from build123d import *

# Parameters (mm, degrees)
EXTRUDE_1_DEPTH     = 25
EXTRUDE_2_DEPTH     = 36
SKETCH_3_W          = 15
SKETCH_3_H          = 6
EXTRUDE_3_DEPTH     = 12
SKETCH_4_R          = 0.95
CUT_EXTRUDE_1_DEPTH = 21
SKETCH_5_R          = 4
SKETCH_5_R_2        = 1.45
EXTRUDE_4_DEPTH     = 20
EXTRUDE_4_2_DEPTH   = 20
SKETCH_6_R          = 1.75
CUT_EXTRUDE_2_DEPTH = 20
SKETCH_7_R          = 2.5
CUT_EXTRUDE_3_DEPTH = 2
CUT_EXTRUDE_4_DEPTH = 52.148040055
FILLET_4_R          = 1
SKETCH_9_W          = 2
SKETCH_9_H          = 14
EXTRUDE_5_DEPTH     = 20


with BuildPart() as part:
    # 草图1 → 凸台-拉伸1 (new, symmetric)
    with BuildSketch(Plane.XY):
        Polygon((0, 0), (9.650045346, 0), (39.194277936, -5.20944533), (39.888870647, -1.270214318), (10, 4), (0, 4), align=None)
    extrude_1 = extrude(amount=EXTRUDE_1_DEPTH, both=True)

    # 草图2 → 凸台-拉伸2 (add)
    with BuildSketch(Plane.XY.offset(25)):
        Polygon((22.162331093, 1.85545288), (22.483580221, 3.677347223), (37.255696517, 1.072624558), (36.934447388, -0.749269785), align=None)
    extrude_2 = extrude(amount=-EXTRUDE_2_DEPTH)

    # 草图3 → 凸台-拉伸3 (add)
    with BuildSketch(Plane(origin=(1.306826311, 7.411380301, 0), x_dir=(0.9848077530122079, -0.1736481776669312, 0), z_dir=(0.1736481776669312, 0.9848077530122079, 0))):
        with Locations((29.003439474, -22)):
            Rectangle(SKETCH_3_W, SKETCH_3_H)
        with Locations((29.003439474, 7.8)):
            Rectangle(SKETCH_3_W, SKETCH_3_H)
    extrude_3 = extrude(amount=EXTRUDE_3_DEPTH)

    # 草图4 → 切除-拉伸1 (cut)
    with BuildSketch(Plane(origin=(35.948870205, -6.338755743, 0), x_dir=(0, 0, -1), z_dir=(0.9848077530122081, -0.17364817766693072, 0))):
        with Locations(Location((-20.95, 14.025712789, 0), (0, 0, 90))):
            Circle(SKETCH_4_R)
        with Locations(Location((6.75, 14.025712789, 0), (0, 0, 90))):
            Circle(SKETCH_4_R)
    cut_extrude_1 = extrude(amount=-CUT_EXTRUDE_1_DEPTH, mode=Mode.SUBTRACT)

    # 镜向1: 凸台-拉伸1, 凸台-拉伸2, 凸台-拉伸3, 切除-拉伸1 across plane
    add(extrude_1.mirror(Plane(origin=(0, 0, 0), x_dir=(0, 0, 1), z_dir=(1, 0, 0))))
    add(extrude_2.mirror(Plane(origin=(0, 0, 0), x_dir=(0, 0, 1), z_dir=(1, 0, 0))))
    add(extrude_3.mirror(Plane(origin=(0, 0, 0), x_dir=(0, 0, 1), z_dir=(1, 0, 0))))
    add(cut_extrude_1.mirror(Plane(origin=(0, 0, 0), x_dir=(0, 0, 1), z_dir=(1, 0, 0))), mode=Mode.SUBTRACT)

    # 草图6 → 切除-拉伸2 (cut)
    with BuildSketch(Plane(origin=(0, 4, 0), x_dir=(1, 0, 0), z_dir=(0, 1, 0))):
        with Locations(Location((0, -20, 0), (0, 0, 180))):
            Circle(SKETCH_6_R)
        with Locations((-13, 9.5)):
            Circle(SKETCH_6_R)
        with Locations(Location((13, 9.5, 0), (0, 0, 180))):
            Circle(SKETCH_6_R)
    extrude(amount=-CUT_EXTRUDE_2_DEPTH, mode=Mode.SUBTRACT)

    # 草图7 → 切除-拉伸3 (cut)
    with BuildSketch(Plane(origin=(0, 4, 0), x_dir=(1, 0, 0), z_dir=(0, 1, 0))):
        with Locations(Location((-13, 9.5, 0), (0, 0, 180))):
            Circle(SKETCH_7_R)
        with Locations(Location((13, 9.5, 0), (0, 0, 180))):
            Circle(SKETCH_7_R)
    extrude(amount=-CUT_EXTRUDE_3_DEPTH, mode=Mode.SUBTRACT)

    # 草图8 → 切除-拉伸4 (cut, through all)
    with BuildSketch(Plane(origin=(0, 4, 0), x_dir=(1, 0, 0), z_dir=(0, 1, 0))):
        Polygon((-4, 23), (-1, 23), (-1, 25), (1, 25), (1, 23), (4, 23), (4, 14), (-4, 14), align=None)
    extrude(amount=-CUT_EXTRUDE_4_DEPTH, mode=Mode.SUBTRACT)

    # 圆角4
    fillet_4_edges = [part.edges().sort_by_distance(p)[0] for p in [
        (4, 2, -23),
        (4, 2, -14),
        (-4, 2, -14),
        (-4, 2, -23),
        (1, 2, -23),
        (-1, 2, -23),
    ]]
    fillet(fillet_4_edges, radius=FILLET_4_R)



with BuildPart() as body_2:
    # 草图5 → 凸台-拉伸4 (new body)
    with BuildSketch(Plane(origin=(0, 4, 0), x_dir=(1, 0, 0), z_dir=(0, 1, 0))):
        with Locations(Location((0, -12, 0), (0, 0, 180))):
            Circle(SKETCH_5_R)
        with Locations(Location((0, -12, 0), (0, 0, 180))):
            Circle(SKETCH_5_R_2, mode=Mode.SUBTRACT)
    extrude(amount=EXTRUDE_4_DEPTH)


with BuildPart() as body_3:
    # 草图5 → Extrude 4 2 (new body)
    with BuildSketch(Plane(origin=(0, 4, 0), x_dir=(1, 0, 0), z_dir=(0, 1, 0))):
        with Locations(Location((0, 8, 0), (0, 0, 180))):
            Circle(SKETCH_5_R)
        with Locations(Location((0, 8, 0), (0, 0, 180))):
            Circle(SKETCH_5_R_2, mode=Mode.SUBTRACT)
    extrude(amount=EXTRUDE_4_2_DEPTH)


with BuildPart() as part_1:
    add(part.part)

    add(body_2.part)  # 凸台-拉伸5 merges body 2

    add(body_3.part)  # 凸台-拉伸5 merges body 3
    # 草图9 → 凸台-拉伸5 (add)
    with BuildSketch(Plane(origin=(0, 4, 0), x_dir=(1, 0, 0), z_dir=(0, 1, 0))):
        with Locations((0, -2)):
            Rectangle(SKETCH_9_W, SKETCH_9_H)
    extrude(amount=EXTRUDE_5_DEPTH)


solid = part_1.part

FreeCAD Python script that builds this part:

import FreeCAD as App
import Part
import Sketcher

V = App.Vector
Q = App.Units.Quantity


def edges_at(feature, points):
    """Names of the edges that pass closest to the given points."""
    edges = feature.Shape.Edges
    near = lambda p: min(range(len(edges)), key=lambda i: edges[i].distToShape(Part.Vertex(*p))[0])
    return sorted({f"Edge{near(p) + 1}" for p in points})


def add_polygon(sketch, points):
    """Adds a closed chain of lines whose ends are joined by coincident constraints."""
    first, n = sketch.GeometryCount, len(points)
    for a, b in zip(points, points[1:] + points[:1]):
        sketch.addGeometry(Part.LineSegment(App.Vector(*a, 0), App.Vector(*b, 0)), False)
    for i in range(n):
        sketch.addConstraint(Sketcher.Constraint("Coincident", first + i, 2, first + (i + 1) % n, 1))

doc = App.newDocument("Part")
params = doc.addObject("Spreadsheet::Sheet", "Params")
for row, (alias, value) in enumerate([
    ("sketch1_width", "10 mm"),
    ("sketch1_height", "4 mm"),
    ("sketch1_length", "30 mm"),
    ("sketch1_length2", "4 mm"),
    ("pad1_length", "50 mm"),
    ("sketch2_length", "15 mm"),
    ("sketch2_length2", "1.85 mm"),
    ("pad2_length", "36 mm"),
    ("sketch3_width", "15 mm"),
    ("sketch3_height", "6 mm"),
    ("pad3_length", "12 mm"),
    ("sketch4_diameter", "1.9 mm"),
    ("pocket1_length", "21 mm"),
    ("sketch5_diameter", "3.5 mm"),
    ("pocket2_length", "20 mm"),
    ("sketch6_diameter", "5 mm"),
    ("pocket3_length", "2 mm"),
    ("sketch7_width", "3 mm"),
    ("sketch7_width2", "8 mm"),
    ("sketch7_height", "9 mm"),
    ("fillet_radius", "1 mm"),
    ("sketch8_diameter", "8 mm"),
    ("sketch8_diameter2", "2.9 mm"),
    ("pad4_length", "20 mm"),
    ("sketch9_diameter", "8 mm"),
    ("sketch9_diameter2", "2.9 mm"),
    ("pad5_length", "20 mm"),
    ("sketch10_width", "2 mm"),
    ("sketch10_height", "14 mm"),
    ("pad6_length", "20 mm"),
], start=1):
    params.set(f"A{row}", alias)
    params.set(f"B{row}", "=" + value)
    params.setAlias(f"B{row}", alias)

body = doc.addObject("PartDesign::Body", "Body")

# Sketch on XY plane
sketch1 = body.newObject("Sketcher::SketchObject", "Sketch")
sketch1.AttachmentSupport = (doc.getObject("XY_Plane"), [""])
sketch1.MapMode = "FlatFace"
add_polygon(sketch1, [(0, 0), (9.7, 0), (39.2, -5.2), (39.9, -1.3), (10, 4), (0, 4)])  # lines 0-5
sketch1.addConstraint(Sketcher.Constraint("Horizontal", 0))
sketch1.addConstraint(Sketcher.Constraint("Horizontal", 4))
sketch1.addConstraint(Sketcher.Constraint("Vertical", 5))
sketch1.addConstraint(Sketcher.Constraint("Coincident", 5, 2, -1, 1))
sketch1.addConstraint(Sketcher.Constraint("Perpendicular", 1, 2))
sketch1.addConstraint(Sketcher.Constraint("Perpendicular", 2, 3))
sketch1.addConstraint(Sketcher.Constraint("DistanceX", 4, 2, 4, 1, Q("10 mm")))
sketch1.addConstraint(Sketcher.Constraint("DistanceY", 5, 2, 5, 1, Q("4 mm")))
sketch1.addConstraint(Sketcher.Constraint("Angle", 1, Q("-10 deg")))
sketch1.addConstraint(Sketcher.Constraint("Distance", 1, Q("30 mm")))
sketch1.addConstraint(Sketcher.Constraint("Distance", 2, Q("4 mm")))
sketch1.setExpression("Constraints[12]", "Params.sketch1_width")
sketch1.setExpression("Constraints[13]", "Params.sketch1_height")
sketch1.setExpression("Constraints[15]", "Params.sketch1_length")
sketch1.setExpression("Constraints[16]", "Params.sketch1_length2")
pad1 = body.newObject("PartDesign::Pad", "Pad")
pad1.Profile = sketch1
pad1.setExpression("Length", "Params.pad1_length")
pad1.Midplane = True

# Sketch on XY plane
sketch2 = body.newObject("Sketcher::SketchObject", "Sketch001")
sketch2.AttachmentSupport = (doc.getObject("XY_Plane"), [""])
sketch2.MapMode = "FlatFace"
sketch2.AttachmentOffset = App.Placement(V(0, 0, 25), App.Rotation())
add_polygon(sketch2, [(22.5, 3.7), (22.2, 1.9), (36.9, -0.7), (37.3, 1.1)])  # lines 0-3
sketch2.addConstraint(Sketcher.Constraint("Perpendicular", 0, 1))
sketch2.addConstraint(Sketcher.Constraint("Perpendicular", 1, 2))
sketch2.addConstraint(Sketcher.Constraint("Perpendicular", 2, 3))
sketch2.addConstraint(Sketcher.Constraint("Angle", 0, Q("-100 deg")))
sketch2.addConstraint(Sketcher.Constraint("Distance", 1, Q("15 mm")))
sketch2.addConstraint(Sketcher.Constraint("Distance", 0, Q("1.85 mm")))
sketch2.addConstraint(Sketcher.Constraint("DistanceX", -1, 1, 0, 2, Q("22.162331 mm")))
sketch2.addConstraint(Sketcher.Constraint("DistanceY", 1, 2, -1, 1, Q("0.74927 mm")))
sketch2.setExpression("Constraints[8]", "Params.sketch2_length")
sketch2.setExpression("Constraints[9]", "Params.sketch2_length2")
pad2 = body.newObject("PartDesign::Pad", "Pad001")
pad2.Profile = sketch2
pad2.setExpression("Length", "Params.pad2_length")
pad2.Reversed = True

# Sketch on an angled plane
sketch3 = body.newObject("Sketcher::SketchObject", "Sketch002")
sketch3.Placement = App.Placement(V(1.306826, 7.41138, 0), App.Rotation(V(0.984807753, -0.173648178, 0), V(0, 0, -1), V(0.173648178, 0.984807753, 0), "ZXY"))
add_polygon(sketch3, [(22, -19), (22, -25), (37, -25), (37, -19)])  # lines 0-3
add_polygon(sketch3, [(22, 11), (22, 5), (37, 5), (37, 11)])  # lines 4-7
sketch3.addConstraint(Sketcher.Constraint("Vertical", 0))
sketch3.addConstraint(Sketcher.Constraint("Horizontal", 1))
sketch3.addConstraint(Sketcher.Constraint("Vertical", 2))
sketch3.addConstraint(Sketcher.Constraint("Horizontal", 3))
sketch3.addConstraint(Sketcher.Constraint("Vertical", 4))
sketch3.addConstraint(Sketcher.Constraint("Horizontal", 5))
sketch3.addConstraint(Sketcher.Constraint("Vertical", 6))
sketch3.addConstraint(Sketcher.Constraint("Horizontal", 7))
sketch3.addConstraint(Sketcher.Constraint("Vertical", 3, 2, 4, 2))
sketch3.addConstraint(Sketcher.Constraint("Vertical", 2, 2, 5, 2))
sketch3.addConstraint(Sketcher.Constraint("Equal", 2, 4))
sketch3.addConstraint(Sketcher.Constraint("DistanceX", 1, 1, 1, 2, Q("15 mm")))
sketch3.addConstraint(Sketcher.Constraint("DistanceY", 0, 2, 0, 1, Q("6 mm")))
sketch3.addConstraint(Sketcher.Constraint("DistanceY", 0, 2, -1, 1, Q("25 mm")))
sketch3.addConstraint(Sketcher.Constraint("DistanceY", -1, 1, 4, 2, Q("4.8 mm")))
sketch3.addConstraint(Sketcher.Constraint("DistanceX", -1, 1, 0, 2, Q("21.503439 mm")))
sketch3.setExpression("Constraints[19]", "Params.sketch3_width")
sketch3.setExpression("Constraints[20]", "Params.sketch3_height")
pad3 = body.newObject("PartDesign::Pad", "Pad002")
pad3.Profile = sketch3
pad3.setExpression("Length", "Params.pad3_length")

# Sketch on an angled plane
sketch4 = body.newObject("Sketcher::SketchObject", "Sketch003")
sketch4.Placement = App.Placement(V(35.94887, -6.338756, 0), App.Rotation(V(0, 0, -1), V(0.173648178, 0.984807753, 0), V(0.984807753, -0.173648178, 0), "ZXY"))
sketch4.addGeometry(Part.Circle(V(-20.9, 14, 0), V(0, 0, 1), 0.9), False)
sketch4.addGeometry(Part.Circle(V(6.8, 14, 0), V(0, 0, 1), 0.9), False)
sketch4.addConstraint(Sketcher.Constraint("Equal", 0, 1))
sketch4.addConstraint(Sketcher.Constraint("Horizontal", 0, 3, 1, 3))
sketch4.addConstraint(Sketcher.Constraint("Diameter", 0, Q("1.9 mm")))
sketch4.addConstraint(Sketcher.Constraint("DistanceX", 0, 3, 1, 3, Q("27.7 mm")))
sketch4.addConstraint(Sketcher.Constraint("DistanceX", 0, 3, -1, 1, Q("20.95 mm")))
sketch4.addConstraint(Sketcher.Constraint("DistanceY", -1, 1, 0, 3, Q("14.025713 mm")))
sketch4.setExpression("Constraints[2]", "Params.sketch4_diameter")
pocket1 = body.newObject("PartDesign::Pocket", "Pocket")
pocket1.Profile = sketch4
pocket1.setExpression("Length", "Params.pocket1_length")
doc.recompute()

mirrored = body.newObject("PartDesign::Mirrored", "Mirrored")
mirrored.Originals = [pad1, pad2, pad3, pocket1]
mirrored.MirrorPlane = (doc.getObject("YZ_Plane"), [""])
body.Tip = mirrored

# Sketch on XZ plane
sketch5 = body.newObject("Sketcher::SketchObject", "Sketch004")
sketch5.AttachmentSupport = (doc.getObject("XZ_Plane"), [""])
sketch5.MapMode = "FlatFace"
sketch5.AttachmentOffset = App.Placement(V(0, 0, -4), App.Rotation())
sketch5.addGeometry(Part.Circle(V(0, 20, 0), V(0, 0, 1), 1.8), False)
sketch5.addGeometry(Part.Circle(V(-13, -9.5, 0), V(0, 0, 1), 1.8), False)
sketch5.addGeometry(Part.Circle(V(13, -9.5, 0), V(0, 0, 1), 1.8), False)
sketch5.addConstraint(Sketcher.Constraint("Equal", 0, 1))
sketch5.addConstraint(Sketcher.Constraint("Equal", 1, 2))
sketch5.addConstraint(Sketcher.Constraint("Symmetric", 1, 3, 2, 3, -2))
sketch5.addConstraint(Sketcher.Constraint("PointOnObject", 0, 3, -2))
sketch5.addConstraint(Sketcher.Constraint("Diameter", 0, Q("3.5 mm")))
sketch5.addConstraint(Sketcher.Constraint("DistanceY", -1, 1, 0, 3, Q("20 mm")))
sketch5.addConstraint(Sketcher.Constraint("DistanceX", 1, 3, -1, 1, Q("13 mm")))
sketch5.addConstraint(Sketcher.Constraint("DistanceY", 1, 3, -1, 1, Q("9.5 mm")))
sketch5.setExpression("Constraints[4]", "Params.sketch5_diameter")
pocket2 = body.newObject("PartDesign::Pocket", "Pocket001")
pocket2.Profile = sketch5
pocket2.setExpression("Length", "Params.pocket2_length")
pocket2.Reversed = True

# Sketch on XZ plane
sketch6 = body.newObject("Sketcher::SketchObject", "Sketch005")
sketch6.AttachmentSupport = (doc.getObject("XZ_Plane"), [""])
sketch6.MapMode = "FlatFace"
sketch6.AttachmentOffset = App.Placement(V(0, 0, -4), App.Rotation())
sketch6.addGeometry(Part.Circle(V(-13, -9.5, 0), V(0, 0, 1), 2.5), False)
sketch6.addGeometry(Part.Circle(V(13, -9.5, 0), V(0, 0, 1), 2.5), False)
sketch6.addConstraint(Sketcher.Constraint("Equal", 0, 1))
sketch6.addConstraint(Sketcher.Constraint("Symmetric", 0, 3, 1, 3, -2))
sketch6.addConstraint(Sketcher.Constraint("Diameter", 0, Q("5 mm")))
sketch6.addConstraint(Sketcher.Constraint("DistanceX", 0, 3, -1, 1, Q("13 mm")))
sketch6.addConstraint(Sketcher.Constraint("DistanceY", 0, 3, -1, 1, Q("9.5 mm")))
sketch6.setExpression("Constraints[2]", "Params.sketch6_diameter")
pocket3 = body.newObject("PartDesign::Pocket", "Pocket002")
pocket3.Profile = sketch6
pocket3.setExpression("Length", "Params.pocket3_length")
pocket3.Reversed = True

# Sketch on XZ plane
sketch7 = body.newObject("Sketcher::SketchObject", "Sketch006")
sketch7.AttachmentSupport = (doc.getObject("XZ_Plane"), [""])
sketch7.MapMode = "FlatFace"
sketch7.AttachmentOffset = App.Placement(V(0, 0, -4), App.Rotation())
add_polygon(sketch7, [(-1, -23), (-4, -23), (-4, -14), (4, -14), (4, -23), (1, -23), (1, -25), (-1, -25)])  # lines 0-7
sketch7.addConstraint(Sketcher.Constraint("Horizontal", 0))
sketch7.addConstraint(Sketcher.Constraint("Vertical", 1))
sketch7.addConstraint(Sketcher.Constraint("Horizontal", 2))
sketch7.addConstraint(Sketcher.Constraint("Vertical", 3))
sketch7.addConstraint(Sketcher.Constraint("Horizontal", 4))
sketch7.addConstraint(Sketcher.Constraint("Vertical", 5))
sketch7.addConstraint(Sketcher.Constraint("Horizontal", 6))
sketch7.addConstraint(Sketcher.Constraint("Vertical", 7))
sketch7.addConstraint(Sketcher.Constraint("Symmetric", 0, 2, 3, 2, -2))
sketch7.addConstraint(Sketcher.Constraint("Equal", 0, 4))
sketch7.addConstraint(Sketcher.Constraint("Equal", 6, 5))
sketch7.addConstraint(Sketcher.Constraint("DistanceX", 0, 2, 0, 1, Q("3 mm")))
sketch7.addConstraint(Sketcher.Constraint("DistanceX", 2, 1, 2, 2, Q("8 mm")))
sketch7.addConstraint(Sketcher.Constraint("DistanceY", 1, 1, 1, 2, Q("9 mm")))
sketch7.addConstraint(Sketcher.Constraint("DistanceY", 0, 2, -1, 1, Q("23 mm")))
sketch7.setExpression("Constraints[19]", "Params.sketch7_width")
sketch7.setExpression("Constraints[20]", "Params.sketch7_width2")
sketch7.setExpression("Constraints[21]", "Params.sketch7_height")
pocket4 = body.newObject("PartDesign::Pocket", "Pocket003")
pocket4.Profile = sketch7
pocket4.Type = "ThroughAll"
pocket4.Reversed = True
doc.recompute()

fillet = body.newObject("PartDesign::Fillet", "Fillet")
fillet.Base = (pocket4, edges_at(pocket4, [
    (4, 2, -23),
    (4, 2, -14),
    (-4, 2, -14),
    (-4, 2, -23),
    (1, 2, -23),
    (-1, 2, -23),
]))
fillet.setExpression("Radius", "Params.fillet_radius")
body2 = doc.addObject("PartDesign::Body", "Body001")

# Sketch on XZ plane
sketch8 = body2.newObject("Sketcher::SketchObject", "Sketch007")
sketch8.AttachmentSupport = (doc.getObject("XZ_Plane001"), [""])
sketch8.MapMode = "FlatFace"
sketch8.AttachmentOffset = App.Placement(V(0, 0, -4), App.Rotation())
sketch8.addGeometry(Part.Circle(V(0, 12, 0), V(0, 0, 1), 4), False)
sketch8.addGeometry(Part.Circle(V(0, 12, 0), V(0, 0, 1), 1.4), False)
sketch8.addConstraint(Sketcher.Constraint("Coincident", 1, 3, 0, 3))
sketch8.addConstraint(Sketcher.Constraint("PointOnObject", 0, 3, -2))
sketch8.addConstraint(Sketcher.Constraint("Diameter", 0, Q("8 mm")))
sketch8.addConstraint(Sketcher.Constraint("Diameter", 1, Q("2.9 mm")))
sketch8.addConstraint(Sketcher.Constraint("DistanceY", -1, 1, 0, 3, Q("12 mm")))
sketch8.setExpression("Constraints[2]", "Params.sketch8_diameter")
sketch8.setExpression("Constraints[3]", "Params.sketch8_diameter2")
pad4 = body2.newObject("PartDesign::Pad", "Pad003")
pad4.Profile = sketch8
pad4.setExpression("Length", "Params.pad4_length")
pad4.Reversed = True
body3 = doc.addObject("PartDesign::Body", "Body002")

# Sketch on XZ plane
sketch9 = body3.newObject("Sketcher::SketchObject", "Sketch008")
sketch9.AttachmentSupport = (doc.getObject("XZ_Plane002"), [""])
sketch9.MapMode = "FlatFace"
sketch9.AttachmentOffset = App.Placement(V(0, 0, -4), App.Rotation())
sketch9.addGeometry(Part.Circle(V(0, -8, 0), V(0, 0, 1), 4), False)
sketch9.addGeometry(Part.Circle(V(0, -8, 0), V(0, 0, 1), 1.4), False)
sketch9.addConstraint(Sketcher.Constraint("Coincident", 1, 3, 0, 3))
sketch9.addConstraint(Sketcher.Constraint("PointOnObject", 0, 3, -2))
sketch9.addConstraint(Sketcher.Constraint("Diameter", 0, Q("8 mm")))
sketch9.addConstraint(Sketcher.Constraint("Diameter", 1, Q("2.9 mm")))
sketch9.addConstraint(Sketcher.Constraint("DistanceY", 0, 3, -1, 1, Q("8 mm")))
sketch9.setExpression("Constraints[2]", "Params.sketch9_diameter")
sketch9.setExpression("Constraints[3]", "Params.sketch9_diameter2")
pad5 = body3.newObject("PartDesign::Pad", "Pad004")
pad5.Profile = sketch9
pad5.setExpression("Length", "Params.pad5_length")
pad5.Reversed = True
doc.recompute()

boolean = body.newObject("PartDesign::Boolean", "Boolean")
boolean.Type = "Fuse"
boolean.addObjects([body2])
doc.recompute()

boolean2 = body.newObject("PartDesign::Boolean", "Boolean001")
boolean2.Type = "Fuse"
boolean2.addObjects([body3])

# Sketch on XZ plane
sketch10 = body.newObject("Sketcher::SketchObject", "Sketch009")
sketch10.AttachmentSupport = (doc.getObject("XZ_Plane"), [""])
sketch10.MapMode = "FlatFace"
sketch10.AttachmentOffset = App.Placement(V(0, 0, -4), App.Rotation())
add_polygon(sketch10, [(-1, -5), (-1, 9), (1, 9), (1, -5)])  # lines 0-3
sketch10.addConstraint(Sketcher.Constraint("Vertical", 0))
sketch10.addConstraint(Sketcher.Constraint("Horizontal", 1))
sketch10.addConstraint(Sketcher.Constraint("Vertical", 2))
sketch10.addConstraint(Sketcher.Constraint("Horizontal", 3))
sketch10.addConstraint(Sketcher.Constraint("DistanceX", 1, 1, 1, 2, Q("2 mm")))
sketch10.addConstraint(Sketcher.Constraint("DistanceY", 0, 1, 0, 2, Q("14 mm")))
sketch10.addConstraint(Sketcher.Constraint("DistanceX", 0, 2, -1, 1, Q("1 mm")))
sketch10.addConstraint(Sketcher.Constraint("DistanceY", -1, 1, 0, 2, Q("9 mm")))
sketch10.setExpression("Constraints[8]", "Params.sketch10_width")
sketch10.setExpression("Constraints[9]", "Params.sketch10_height")
pad6 = body.newObject("PartDesign::Pad", "Pad005")
pad6.Profile = sketch10
pad6.setExpression("Length", "Params.pad6_length")
pad6.Reversed = True

doc.recompute()
